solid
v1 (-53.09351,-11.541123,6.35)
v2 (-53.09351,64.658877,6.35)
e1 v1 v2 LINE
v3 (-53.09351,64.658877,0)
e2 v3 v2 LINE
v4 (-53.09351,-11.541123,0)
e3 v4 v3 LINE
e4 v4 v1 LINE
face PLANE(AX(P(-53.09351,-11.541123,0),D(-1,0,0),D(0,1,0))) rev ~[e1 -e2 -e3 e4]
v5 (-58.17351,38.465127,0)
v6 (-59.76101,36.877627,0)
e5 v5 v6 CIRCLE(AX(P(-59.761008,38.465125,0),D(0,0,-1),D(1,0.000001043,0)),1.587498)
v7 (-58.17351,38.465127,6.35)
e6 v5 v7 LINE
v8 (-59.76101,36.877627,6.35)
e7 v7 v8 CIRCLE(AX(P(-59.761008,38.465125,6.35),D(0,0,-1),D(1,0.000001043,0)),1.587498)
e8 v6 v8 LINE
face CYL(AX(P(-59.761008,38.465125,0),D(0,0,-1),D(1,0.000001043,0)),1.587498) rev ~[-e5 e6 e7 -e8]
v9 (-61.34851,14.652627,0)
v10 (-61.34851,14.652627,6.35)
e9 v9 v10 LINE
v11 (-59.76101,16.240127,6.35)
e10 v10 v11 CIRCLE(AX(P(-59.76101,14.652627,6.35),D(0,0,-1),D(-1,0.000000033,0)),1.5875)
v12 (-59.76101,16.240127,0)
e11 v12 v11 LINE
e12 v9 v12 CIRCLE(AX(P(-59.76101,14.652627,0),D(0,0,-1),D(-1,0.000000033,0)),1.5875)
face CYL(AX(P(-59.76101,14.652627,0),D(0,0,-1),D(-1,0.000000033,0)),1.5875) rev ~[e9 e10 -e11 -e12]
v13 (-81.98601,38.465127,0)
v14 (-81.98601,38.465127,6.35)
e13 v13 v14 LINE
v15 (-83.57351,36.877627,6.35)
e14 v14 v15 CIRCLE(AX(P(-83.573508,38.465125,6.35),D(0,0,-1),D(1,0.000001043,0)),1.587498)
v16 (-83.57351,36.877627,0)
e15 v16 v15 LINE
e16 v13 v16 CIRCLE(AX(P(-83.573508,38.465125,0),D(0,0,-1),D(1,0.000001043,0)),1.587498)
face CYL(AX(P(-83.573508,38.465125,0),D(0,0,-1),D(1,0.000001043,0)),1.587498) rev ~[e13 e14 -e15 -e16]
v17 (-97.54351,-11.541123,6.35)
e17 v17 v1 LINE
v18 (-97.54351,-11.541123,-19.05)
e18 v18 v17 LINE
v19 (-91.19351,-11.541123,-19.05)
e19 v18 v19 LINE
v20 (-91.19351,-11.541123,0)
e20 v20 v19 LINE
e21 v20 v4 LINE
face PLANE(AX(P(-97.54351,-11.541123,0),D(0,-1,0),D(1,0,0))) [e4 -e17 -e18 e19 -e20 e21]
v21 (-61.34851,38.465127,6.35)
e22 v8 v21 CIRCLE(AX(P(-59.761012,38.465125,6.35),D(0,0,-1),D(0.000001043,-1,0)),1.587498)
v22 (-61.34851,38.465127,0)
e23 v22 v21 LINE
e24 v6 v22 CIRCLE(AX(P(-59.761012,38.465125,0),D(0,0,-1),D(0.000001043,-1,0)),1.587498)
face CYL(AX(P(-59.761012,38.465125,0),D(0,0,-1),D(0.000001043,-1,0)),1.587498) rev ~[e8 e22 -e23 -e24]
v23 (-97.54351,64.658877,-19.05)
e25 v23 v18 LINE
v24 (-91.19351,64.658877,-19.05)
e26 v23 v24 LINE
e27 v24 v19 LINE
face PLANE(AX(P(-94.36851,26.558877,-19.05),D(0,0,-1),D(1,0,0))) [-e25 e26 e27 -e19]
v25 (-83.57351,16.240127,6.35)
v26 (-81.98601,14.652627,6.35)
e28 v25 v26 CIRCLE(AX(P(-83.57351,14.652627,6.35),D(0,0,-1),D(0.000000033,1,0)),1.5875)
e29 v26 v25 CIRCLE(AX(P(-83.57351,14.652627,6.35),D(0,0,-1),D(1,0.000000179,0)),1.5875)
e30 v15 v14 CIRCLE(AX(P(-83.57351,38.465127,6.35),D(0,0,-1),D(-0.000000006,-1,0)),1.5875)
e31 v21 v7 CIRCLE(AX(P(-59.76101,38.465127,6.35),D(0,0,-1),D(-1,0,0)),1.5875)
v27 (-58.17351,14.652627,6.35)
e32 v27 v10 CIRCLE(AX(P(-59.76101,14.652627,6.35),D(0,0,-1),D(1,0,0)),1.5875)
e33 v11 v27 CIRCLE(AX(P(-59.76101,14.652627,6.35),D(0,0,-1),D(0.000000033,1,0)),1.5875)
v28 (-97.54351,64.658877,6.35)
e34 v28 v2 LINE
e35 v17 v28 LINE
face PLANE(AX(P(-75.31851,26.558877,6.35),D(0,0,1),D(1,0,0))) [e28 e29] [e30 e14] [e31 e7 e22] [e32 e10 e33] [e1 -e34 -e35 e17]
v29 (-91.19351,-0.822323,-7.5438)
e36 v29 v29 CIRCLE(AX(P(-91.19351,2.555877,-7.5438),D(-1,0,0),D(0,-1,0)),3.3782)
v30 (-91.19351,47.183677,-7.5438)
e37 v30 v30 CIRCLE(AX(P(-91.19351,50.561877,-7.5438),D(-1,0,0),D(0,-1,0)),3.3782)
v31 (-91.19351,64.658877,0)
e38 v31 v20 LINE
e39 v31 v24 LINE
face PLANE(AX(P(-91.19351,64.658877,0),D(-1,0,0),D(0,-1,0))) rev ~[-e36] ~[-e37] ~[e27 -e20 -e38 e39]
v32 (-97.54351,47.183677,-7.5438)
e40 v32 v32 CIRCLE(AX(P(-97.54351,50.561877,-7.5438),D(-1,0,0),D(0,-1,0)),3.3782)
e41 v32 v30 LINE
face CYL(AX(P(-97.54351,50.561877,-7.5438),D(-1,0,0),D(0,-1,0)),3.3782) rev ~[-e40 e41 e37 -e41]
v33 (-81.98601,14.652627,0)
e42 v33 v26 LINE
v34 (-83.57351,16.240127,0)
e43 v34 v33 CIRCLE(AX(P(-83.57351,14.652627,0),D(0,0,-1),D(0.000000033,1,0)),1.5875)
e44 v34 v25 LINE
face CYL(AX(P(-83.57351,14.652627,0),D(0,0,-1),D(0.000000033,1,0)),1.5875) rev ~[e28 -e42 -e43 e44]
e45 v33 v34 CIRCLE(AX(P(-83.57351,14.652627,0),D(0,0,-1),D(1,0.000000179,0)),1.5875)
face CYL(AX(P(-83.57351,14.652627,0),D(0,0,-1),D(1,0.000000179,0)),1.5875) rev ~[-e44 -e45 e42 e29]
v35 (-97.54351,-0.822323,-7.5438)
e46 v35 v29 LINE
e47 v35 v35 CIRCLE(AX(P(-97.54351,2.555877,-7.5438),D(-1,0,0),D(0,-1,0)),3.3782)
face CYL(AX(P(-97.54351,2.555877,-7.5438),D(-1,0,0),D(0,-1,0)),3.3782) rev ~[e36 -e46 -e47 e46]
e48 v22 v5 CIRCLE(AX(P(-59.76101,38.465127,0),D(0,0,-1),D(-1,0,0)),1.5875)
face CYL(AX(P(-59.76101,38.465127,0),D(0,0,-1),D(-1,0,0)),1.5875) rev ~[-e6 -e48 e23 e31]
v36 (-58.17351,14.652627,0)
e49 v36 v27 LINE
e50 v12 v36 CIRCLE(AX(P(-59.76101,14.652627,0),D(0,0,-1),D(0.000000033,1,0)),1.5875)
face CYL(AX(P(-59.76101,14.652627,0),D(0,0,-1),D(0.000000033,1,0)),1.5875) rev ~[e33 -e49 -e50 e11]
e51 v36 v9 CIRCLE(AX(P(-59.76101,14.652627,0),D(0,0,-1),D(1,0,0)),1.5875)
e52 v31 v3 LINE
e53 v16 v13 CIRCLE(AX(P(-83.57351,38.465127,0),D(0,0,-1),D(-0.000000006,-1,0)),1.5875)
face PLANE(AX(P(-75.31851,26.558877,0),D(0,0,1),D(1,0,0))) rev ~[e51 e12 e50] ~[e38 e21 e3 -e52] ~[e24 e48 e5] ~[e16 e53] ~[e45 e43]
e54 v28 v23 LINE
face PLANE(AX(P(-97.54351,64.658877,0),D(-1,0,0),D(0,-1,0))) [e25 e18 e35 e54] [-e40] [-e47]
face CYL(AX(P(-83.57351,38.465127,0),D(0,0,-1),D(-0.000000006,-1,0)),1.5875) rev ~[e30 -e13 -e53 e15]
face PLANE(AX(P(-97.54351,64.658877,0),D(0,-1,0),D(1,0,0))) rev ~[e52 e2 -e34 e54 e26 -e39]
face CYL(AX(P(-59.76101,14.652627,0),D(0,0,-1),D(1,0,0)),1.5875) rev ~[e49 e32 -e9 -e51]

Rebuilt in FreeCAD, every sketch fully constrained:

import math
import FreeCAD as App
import Part
import Sketcher

V = App.Vector
Q = App.Units.Quantity

doc = App.newDocument("Part")
body = doc.addObject("PartDesign::Body", "Body")

# Sketch on XY plane
sketch1 = body.newObject("Sketcher::SketchObject", "Sketch")
sketch1.AttachmentSupport = (doc.getObject("XY_Plane"), [""])
sketch1.MapMode = "FlatFace"
sketch1.addGeometry([
    Part.LineSegment(V(-98, 65, 0), V(-98, -12, 0)),
    Part.LineSegment(V(-98, -12, 0), V(-53, -12, 0)),
    Part.LineSegment(V(-53, -12, 0), V(-53, 65, 0)),
    Part.LineSegment(V(-53, 65, 0), V(-98, 65, 0)),
], False)
sketch1.addConstraint([
    Sketcher.Constraint("Coincident", 0, 2, 1, 1),
    Sketcher.Constraint("Coincident", 1, 2, 2, 1),
    Sketcher.Constraint("Coincident", 2, 2, 3, 1),
    Sketcher.Constraint("Coincident", 3, 2, 0, 1),
    Sketcher.Constraint("Vertical", 0),
    Sketcher.Constraint("Horizontal", 1),
    Sketcher.Constraint("Vertical", 2),
    Sketcher.Constraint("Horizontal", 3),
    Sketcher.Constraint("DistanceY", 0, 2, 0, 1, Q("3 in")),
    Sketcher.Constraint("DistanceX", 1, 1, 1, 2, Q("1.75 in")),
    Sketcher.Constraint("DistanceX", 0, 2, -1, 1, Q("97.54351 mm")),
    Sketcher.Constraint("DistanceY", 0, 2, -1, 1, Q("11.541123 mm")),
])
pad1 = body.newObject("PartDesign::Pad", "Pad")
pad1.Profile = sketch1
pad1.Length = Q("0.25 in")

# Sketch on XY plane
sketch2 = body.newObject("Sketcher::SketchObject", "Sketch001")
sketch2.AttachmentSupport = (doc.getObject("XY_Plane"), [""])
sketch2.MapMode = "FlatFace"
sketch2.addGeometry([
    Part.LineSegment(V(-98, -12, 0), V(-98, 65, 0)),
    Part.LineSegment(V(-98, 65, 0), V(-91, 65, 0)),
    Part.LineSegment(V(-91, 65, 0), V(-91, -12, 0)),
    Part.LineSegment(V(-91, -12, 0), V(-98, -12, 0)),
], False)
sketch2.addConstraint([
    Sketcher.Constraint("Coincident", 0, 2, 1, 1),
    Sketcher.Constraint("Coincident", 1, 2, 2, 1),
    Sketcher.Constraint("Coincident", 2, 2, 3, 1),
    Sketcher.Constraint("Coincident", 3, 2, 0, 1),
    Sketcher.Constraint("Vertical", 0),
    Sketcher.Constraint("Horizontal", 1),
    Sketcher.Constraint("Vertical", 2),
    Sketcher.Constraint("Horizontal", 3),
    Sketcher.Constraint("DistanceY", 0, 1, 0, 2, Q("3 in")),
    Sketcher.Constraint("DistanceX", 1, 1, 1, 2, Q("0.25 in")),
    Sketcher.Constraint("DistanceX", 0, 2, -1, 1, Q("97.54351 mm")),
    Sketcher.Constraint("DistanceY", -1, 1, 0, 2, Q("64.658877 mm")),
])
pad2 = body.newObject("PartDesign::Pad", "Pad001")
pad2.Profile = sketch2
pad2.Length = Q("0.75 in")
pad2.Reversed = True

# Sketch on YZ plane
sketch3 = body.newObject("Sketcher::SketchObject", "Sketch002")
sketch3.AttachmentSupport = (doc.getObject("YZ_Plane"), [""])
sketch3.MapMode = "FlatFace"
sketch3.AttachmentOffset = App.Placement(V(0, 0, -97.54351), App.Rotation())
sketch3.addGeometry([
    Part.Circle(V(2.6, -7.5, 0), V(0, 0, 1), 3.4),
    Part.Circle(V(50.6, -7.5, 0), V(0, 0, 1), 3.4),
], False)
sketch3.addConstraint([
    Sketcher.Constraint("Equal", 0, 1),
    Sketcher.Constraint("Horizontal", 0, 3, 1, 3),
    Sketcher.Constraint("Diameter", 0, Q("0.266 in")),
    Sketcher.Constraint("DistanceX", 0, 3, 1, 3, Q("1.89 in")),
    Sketcher.Constraint("DistanceY", 0, 3, -1, 1, Q("0.297 in")),
    Sketcher.Constraint("DistanceX", -1, 1, 0, 3, Q("2.555877 mm")),
])
pocket1 = body.newObject("PartDesign::Pocket", "Pocket")
pocket1.Profile = sketch3
pocket1.Length = Q("0.5 in")
pocket1.Reversed = True

# Sketch on XY plane
sketch4 = body.newObject("Sketcher::SketchObject", "Sketch003")
sketch4.AttachmentSupport = (doc.getObject("XY_Plane"), [""])
sketch4.MapMode = "FlatFace"
sketch4.addGeometry([
    Part.ArcOfCircle(Part.Circle(V(-83.6, 14.7, 0), V(0, 0, 1), 1.6), math.radians(0), math.radians(90)),  # 0
    Part.ArcOfCircle(Part.Circle(V(-83.6, 14.7, 0), V(0, 0, 1), 1.6), math.radians(90), math.radians(360)),  # 1
    Part.ArcOfCircle(Part.Circle(V(-59.8, 14.7, 0), V(0, 0, 1), 1.6), math.radians(90), math.radians(180)),  # 2
    Part.ArcOfCircle(Part.Circle(V(-59.8, 14.7, 0), V(0, 0, 1), 1.6), math.radians(0), math.radians(90)),  # 3
    Part.ArcOfCircle(Part.Circle(V(-59.8, 14.7, 0), V(0, 0, 1), 1.6), math.radians(180), math.radians(360)),  # 4
    Part.ArcOfCircle(Part.Circle(V(-83.6, 38.5, 0), V(0, 0, 1), 1.6), math.radians(0), math.radians(270)),  # 5
    Part.ArcOfCircle(Part.Circle(V(-83.6, 38.5, 0), V(0, 0, 1), 1.6), math.radians(-90), math.radians(0)),  # 6
    Part.ArcOfCircle(Part.Circle(V(-59.8, 38.5, 0), V(0, 0, 1), 1.6), math.radians(-90), math.radians(0)),  # 7
    Part.ArcOfCircle(Part.Circle(V(-59.8, 38.5, 0), V(0, 0, 1), 1.6), math.radians(180), math.radians(270)),  # 8
    Part.ArcOfCircle(Part.Circle(V(-59.8, 38.5, 0), V(0, 0, 1), 1.6), math.radians(0), math.radians(180)),  # 9
], False)
sketch4.addConstraint([
    Sketcher.Constraint("Tangent", 0, 1, 1, 2),
    Sketcher.Constraint("Coincident", 1, 1, 0, 2),
    Sketcher.Constraint("Tangent", 2, 1, 3, 2),
    Sketcher.Constraint("Tangent", 3, 1, 4, 2),
    Sketcher.Constraint("Tangent", 4, 1, 2, 2),
    Sketcher.Constraint("Tangent", 5, 1, 6, 2),
    Sketcher.Constraint("Coincident", 6, 1, 5, 2),
    Sketcher.Constraint("Coincident", 7, 1, 8, 2),
    Sketcher.Constraint("Tangent", 8, 1, 9, 2),
    Sketcher.Constraint("Tangent", 9, 1, 7, 2),
    Sketcher.Constraint("Equal", 1, 2),
    Sketcher.Constraint("Equal", 4, 5),
    Sketcher.Constraint("Equal", 6, 7),
    Sketcher.Constraint("Equal", 8, 9),
    Sketcher.Constraint("Horizontal", 1, 3, 2, 3),
    Sketcher.Constraint("Horizontal", 6, 3, 7, 3),
    Sketcher.Constraint("Horizontal", 4, 3, 0, 1),
    Sketcher.Constraint("Horizontal", 0, 1, 3, 1),
    Sketcher.Constraint("Horizontal", 3, 1, 4, 1),
    Sketcher.Constraint("Horizontal", 9, 3, 5, 1),
    Sketcher.Constraint("Horizontal", 5, 1, 8, 1),
    Sketcher.Constraint("Horizontal", 8, 1, 9, 1),
    Sketcher.Constraint("Vertical", 1, 3, 5, 3),
    Sketcher.Constraint("Vertical", 4, 3, 7, 3),
    Sketcher.Constraint("Vertical", 6, 3, 1, 1),
    Sketcher.Constraint("Vertical", 9, 3, 2, 1),
    Sketcher.Constraint("Vertical", 1, 1, 6, 1),
    Sketcher.Constraint("Vertical", 2, 1, 7, 1),
    Sketcher.Constraint("Radius", 0, Q("0.0625 in")),
    Sketcher.Constraint("DistanceX", 0, 3, 2, 3, Q("0.9375 in")),
    Sketcher.Constraint("DistanceY", 0, 3, 5, 3, Q("0.9375 in")),
    Sketcher.Constraint("DistanceX", 0, 3, -1, 1, Q("83.57351 mm")),
    Sketcher.Constraint("DistanceY", -1, 1, 0, 3, Q("14.652627 mm")),
])
pocket2 = body.newObject("PartDesign::Pocket", "Pocket001")
pocket2.Profile = sketch4
pocket2.Length = Q("1 in")
pocket2.Reversed = True

doc.recompute()
